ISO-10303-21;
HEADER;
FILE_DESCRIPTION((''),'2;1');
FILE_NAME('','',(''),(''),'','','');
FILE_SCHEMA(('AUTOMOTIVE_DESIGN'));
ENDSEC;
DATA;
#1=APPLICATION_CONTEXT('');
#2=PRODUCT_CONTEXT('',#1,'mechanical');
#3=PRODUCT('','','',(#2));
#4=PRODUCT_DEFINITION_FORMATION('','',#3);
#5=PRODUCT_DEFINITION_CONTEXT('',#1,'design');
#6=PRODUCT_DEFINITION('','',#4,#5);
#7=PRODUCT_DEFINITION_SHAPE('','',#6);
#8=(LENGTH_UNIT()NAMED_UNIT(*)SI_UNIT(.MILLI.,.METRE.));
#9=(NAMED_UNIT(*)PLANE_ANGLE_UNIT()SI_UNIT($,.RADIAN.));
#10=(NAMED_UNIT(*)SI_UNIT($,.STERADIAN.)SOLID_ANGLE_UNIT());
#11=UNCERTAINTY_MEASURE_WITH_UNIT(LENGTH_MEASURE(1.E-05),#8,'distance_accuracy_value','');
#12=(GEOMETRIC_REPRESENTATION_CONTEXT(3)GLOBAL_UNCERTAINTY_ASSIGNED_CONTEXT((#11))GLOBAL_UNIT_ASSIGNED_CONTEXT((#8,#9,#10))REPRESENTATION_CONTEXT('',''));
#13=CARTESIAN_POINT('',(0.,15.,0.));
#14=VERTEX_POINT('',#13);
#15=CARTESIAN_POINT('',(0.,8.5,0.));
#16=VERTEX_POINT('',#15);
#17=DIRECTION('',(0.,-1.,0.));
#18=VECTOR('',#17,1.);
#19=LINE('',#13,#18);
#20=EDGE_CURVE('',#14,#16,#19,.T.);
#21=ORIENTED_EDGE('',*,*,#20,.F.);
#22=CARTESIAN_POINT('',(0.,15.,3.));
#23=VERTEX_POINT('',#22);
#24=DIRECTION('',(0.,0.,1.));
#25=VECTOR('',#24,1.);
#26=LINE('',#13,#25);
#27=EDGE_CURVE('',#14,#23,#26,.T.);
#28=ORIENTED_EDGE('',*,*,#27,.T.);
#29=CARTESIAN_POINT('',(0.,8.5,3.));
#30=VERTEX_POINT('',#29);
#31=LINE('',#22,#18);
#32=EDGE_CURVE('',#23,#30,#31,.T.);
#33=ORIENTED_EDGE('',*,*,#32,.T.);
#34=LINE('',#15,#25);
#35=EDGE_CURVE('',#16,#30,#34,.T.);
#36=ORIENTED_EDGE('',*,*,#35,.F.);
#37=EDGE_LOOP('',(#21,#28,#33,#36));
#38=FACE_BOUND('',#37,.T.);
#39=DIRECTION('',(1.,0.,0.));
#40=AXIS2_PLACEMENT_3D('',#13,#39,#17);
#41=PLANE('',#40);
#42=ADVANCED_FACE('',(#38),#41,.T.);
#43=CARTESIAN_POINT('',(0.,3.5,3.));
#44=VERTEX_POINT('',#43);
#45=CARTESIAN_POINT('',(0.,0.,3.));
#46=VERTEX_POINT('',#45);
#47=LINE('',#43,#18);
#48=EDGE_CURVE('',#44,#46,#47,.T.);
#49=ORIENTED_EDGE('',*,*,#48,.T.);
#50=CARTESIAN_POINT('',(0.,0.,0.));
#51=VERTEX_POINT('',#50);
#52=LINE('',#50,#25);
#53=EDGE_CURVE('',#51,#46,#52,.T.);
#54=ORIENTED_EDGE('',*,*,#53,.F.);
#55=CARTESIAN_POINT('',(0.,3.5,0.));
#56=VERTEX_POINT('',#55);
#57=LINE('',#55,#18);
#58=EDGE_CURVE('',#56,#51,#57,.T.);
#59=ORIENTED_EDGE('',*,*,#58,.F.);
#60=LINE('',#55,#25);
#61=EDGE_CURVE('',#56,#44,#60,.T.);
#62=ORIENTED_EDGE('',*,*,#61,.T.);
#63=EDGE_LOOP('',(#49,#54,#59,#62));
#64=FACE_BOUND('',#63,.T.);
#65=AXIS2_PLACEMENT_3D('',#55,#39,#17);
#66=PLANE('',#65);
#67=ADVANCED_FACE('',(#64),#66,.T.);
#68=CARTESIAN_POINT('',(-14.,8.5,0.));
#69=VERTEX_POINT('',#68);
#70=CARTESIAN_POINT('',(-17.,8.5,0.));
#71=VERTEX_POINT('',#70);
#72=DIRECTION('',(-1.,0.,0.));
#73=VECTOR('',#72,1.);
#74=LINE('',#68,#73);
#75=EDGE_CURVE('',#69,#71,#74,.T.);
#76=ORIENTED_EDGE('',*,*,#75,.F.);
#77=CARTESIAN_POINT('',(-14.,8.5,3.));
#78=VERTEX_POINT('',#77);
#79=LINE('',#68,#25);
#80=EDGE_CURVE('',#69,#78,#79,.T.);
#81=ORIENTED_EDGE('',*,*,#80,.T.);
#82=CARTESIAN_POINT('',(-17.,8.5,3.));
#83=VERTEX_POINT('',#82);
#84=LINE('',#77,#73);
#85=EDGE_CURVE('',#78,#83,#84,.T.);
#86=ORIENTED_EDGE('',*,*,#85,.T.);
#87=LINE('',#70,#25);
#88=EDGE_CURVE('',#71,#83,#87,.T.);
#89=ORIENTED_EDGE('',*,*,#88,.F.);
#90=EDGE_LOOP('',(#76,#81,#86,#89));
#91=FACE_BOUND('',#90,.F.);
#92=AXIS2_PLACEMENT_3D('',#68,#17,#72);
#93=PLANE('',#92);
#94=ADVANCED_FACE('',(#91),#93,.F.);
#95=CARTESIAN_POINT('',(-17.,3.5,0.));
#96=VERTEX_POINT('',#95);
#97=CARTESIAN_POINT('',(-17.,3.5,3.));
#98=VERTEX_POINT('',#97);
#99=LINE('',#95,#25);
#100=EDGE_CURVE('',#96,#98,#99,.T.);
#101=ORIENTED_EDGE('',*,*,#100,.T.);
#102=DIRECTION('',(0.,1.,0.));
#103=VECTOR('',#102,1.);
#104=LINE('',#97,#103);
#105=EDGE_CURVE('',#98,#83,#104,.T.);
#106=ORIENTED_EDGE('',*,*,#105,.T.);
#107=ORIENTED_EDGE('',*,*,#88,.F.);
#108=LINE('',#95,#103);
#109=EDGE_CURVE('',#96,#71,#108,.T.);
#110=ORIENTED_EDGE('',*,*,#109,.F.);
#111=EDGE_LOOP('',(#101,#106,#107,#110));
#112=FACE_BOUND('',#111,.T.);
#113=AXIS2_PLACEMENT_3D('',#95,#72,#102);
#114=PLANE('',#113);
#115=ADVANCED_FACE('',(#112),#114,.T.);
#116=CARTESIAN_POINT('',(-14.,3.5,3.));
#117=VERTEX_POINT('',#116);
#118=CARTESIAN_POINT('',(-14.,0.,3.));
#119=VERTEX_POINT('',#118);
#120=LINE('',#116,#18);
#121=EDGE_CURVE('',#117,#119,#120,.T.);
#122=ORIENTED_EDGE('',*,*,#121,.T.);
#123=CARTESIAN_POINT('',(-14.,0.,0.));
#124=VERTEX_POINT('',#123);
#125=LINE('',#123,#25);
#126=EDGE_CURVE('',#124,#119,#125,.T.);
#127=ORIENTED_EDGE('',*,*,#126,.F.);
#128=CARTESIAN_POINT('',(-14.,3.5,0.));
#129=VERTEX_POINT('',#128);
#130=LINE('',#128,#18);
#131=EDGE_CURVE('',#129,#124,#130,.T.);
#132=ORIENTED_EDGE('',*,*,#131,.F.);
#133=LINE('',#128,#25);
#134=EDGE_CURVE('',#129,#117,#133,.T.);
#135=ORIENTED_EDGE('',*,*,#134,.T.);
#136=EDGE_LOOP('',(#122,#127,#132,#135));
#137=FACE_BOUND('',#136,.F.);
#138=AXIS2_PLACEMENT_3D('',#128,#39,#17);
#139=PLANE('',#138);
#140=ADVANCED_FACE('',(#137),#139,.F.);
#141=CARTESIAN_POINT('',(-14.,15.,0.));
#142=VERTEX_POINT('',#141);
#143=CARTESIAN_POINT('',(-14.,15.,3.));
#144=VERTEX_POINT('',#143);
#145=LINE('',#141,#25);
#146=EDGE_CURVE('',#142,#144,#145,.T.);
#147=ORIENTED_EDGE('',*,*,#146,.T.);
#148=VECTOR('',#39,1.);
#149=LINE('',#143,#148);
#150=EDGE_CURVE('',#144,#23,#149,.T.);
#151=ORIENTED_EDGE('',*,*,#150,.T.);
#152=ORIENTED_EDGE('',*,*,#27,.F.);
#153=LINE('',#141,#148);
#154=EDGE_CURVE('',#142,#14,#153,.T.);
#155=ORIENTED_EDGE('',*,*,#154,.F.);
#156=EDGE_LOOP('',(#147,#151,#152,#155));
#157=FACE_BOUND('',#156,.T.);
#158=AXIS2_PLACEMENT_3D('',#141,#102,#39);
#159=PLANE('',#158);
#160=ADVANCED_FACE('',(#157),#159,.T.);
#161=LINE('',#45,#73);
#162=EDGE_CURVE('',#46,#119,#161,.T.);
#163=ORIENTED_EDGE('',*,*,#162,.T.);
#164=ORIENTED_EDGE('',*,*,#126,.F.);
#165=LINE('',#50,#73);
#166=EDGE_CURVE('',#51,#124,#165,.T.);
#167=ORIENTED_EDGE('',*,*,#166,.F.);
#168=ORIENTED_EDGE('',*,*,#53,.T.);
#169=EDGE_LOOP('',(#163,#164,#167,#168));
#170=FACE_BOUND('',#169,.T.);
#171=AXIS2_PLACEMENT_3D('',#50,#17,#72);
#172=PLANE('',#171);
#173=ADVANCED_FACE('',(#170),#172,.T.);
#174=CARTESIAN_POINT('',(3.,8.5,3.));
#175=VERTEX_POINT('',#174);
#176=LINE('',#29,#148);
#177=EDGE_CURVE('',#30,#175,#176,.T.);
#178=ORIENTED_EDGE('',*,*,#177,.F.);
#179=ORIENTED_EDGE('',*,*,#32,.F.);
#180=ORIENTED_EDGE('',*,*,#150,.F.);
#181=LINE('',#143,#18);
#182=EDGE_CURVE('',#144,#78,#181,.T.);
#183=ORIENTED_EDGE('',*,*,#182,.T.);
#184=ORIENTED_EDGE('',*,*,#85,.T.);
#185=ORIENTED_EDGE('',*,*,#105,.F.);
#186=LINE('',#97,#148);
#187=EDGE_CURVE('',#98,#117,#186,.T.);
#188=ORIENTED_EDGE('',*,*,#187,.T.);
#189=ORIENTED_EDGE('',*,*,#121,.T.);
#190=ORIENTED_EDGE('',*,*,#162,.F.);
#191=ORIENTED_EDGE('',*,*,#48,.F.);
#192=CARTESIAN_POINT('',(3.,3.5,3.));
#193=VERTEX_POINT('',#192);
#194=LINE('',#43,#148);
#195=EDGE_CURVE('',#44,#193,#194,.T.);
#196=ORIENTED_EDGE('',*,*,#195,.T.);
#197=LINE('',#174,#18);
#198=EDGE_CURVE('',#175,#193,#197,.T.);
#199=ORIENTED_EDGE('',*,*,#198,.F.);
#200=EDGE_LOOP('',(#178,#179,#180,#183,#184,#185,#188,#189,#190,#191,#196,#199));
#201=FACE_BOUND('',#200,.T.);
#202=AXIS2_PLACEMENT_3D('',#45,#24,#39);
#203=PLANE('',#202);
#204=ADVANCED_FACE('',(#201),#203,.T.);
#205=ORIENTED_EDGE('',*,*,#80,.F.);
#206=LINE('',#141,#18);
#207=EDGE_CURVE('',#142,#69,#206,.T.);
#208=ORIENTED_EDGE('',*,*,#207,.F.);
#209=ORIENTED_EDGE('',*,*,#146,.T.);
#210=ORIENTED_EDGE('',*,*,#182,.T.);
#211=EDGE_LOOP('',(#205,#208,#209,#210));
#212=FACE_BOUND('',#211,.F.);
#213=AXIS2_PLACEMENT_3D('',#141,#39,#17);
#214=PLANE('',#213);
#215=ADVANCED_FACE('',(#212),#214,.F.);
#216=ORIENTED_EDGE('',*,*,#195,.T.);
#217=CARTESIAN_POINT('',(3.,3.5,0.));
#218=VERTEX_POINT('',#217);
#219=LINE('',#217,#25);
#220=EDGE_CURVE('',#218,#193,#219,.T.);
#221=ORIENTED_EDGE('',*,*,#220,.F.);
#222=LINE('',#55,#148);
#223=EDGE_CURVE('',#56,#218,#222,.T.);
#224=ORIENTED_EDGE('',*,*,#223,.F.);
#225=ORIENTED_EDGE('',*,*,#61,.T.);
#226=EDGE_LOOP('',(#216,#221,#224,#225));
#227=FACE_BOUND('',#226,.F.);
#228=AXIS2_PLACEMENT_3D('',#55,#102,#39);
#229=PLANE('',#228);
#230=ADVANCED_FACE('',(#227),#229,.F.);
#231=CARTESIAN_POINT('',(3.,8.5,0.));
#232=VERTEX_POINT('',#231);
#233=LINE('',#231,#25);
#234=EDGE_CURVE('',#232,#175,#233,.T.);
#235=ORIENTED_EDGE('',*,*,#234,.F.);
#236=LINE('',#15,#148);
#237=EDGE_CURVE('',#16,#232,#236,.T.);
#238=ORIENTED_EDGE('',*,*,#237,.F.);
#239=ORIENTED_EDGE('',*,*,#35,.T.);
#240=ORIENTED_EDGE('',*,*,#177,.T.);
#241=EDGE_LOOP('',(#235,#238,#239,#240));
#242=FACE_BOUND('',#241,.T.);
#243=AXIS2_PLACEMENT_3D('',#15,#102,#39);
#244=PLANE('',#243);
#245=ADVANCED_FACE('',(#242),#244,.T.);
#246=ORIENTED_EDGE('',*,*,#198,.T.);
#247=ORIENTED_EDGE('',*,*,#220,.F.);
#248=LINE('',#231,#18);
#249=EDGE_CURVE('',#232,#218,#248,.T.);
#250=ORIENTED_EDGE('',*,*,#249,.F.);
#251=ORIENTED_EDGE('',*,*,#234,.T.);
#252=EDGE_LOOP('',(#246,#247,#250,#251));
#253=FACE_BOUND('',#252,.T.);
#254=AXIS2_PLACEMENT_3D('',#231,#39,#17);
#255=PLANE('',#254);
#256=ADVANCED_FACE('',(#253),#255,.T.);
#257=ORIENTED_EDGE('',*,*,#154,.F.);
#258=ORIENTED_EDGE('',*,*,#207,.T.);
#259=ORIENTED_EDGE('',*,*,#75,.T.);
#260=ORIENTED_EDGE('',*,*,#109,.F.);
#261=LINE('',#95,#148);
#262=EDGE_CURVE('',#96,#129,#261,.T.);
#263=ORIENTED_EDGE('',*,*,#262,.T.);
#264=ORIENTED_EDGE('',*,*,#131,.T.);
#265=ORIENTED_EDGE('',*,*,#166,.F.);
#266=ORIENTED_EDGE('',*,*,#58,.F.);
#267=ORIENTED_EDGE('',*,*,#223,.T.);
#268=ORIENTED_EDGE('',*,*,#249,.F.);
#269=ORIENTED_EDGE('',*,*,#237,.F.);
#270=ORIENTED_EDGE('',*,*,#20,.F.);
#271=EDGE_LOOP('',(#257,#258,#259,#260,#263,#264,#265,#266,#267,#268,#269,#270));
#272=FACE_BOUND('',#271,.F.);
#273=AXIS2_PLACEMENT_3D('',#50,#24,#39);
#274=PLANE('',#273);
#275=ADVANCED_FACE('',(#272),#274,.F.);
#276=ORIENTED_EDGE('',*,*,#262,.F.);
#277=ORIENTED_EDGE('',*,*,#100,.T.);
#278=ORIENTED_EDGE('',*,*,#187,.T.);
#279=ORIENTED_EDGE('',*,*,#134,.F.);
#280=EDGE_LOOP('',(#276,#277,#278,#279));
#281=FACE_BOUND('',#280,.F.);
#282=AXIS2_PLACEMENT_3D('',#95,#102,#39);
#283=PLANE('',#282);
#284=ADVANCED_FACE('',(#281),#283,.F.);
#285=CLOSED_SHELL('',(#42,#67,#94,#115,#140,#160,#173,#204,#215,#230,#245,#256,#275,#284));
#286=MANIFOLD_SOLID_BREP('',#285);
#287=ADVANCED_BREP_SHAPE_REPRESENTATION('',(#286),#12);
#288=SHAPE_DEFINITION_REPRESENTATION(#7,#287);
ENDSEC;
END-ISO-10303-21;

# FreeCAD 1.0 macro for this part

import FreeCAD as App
import Part
import Sketcher

V = App.Vector
Q = App.Units.Quantity

doc = App.newDocument("Part")
params = doc.addObject("Spreadsheet::Sheet", "Params")
for row, (alias, value) in enumerate([
    ("sketch1_width", "3 mm"),
    ("sketch1_height", "5 mm"),
    ("sketch1_height2", "3.5 mm"),
    ("sketch1_width2", "14 mm"),
    ("pad1_length", "3 mm"),
], start=1):
    params.set(f"A{row}", alias)
    params.set(f"B{row}", "=" + value)
    params.setAlias(f"B{row}", alias)

body = doc.addObject("PartDesign::Body", "Body")

sketch1 = body.newObject("Sketcher::SketchObject", "Sketch")
sketch1.AttachmentSupport = (doc.getObject("XY_Plane"), [""])
sketch1.MapMode = "FlatFace"
sketch1.addGeometry([
    Part.LineSegment(V(0, 15, 0), V(-14, 15, 0)),
    Part.LineSegment(V(-14, 15, 0), V(-14, 8.5, 0)),
    Part.LineSegment(V(-14, 8.5, 0), V(-17, 8.5, 0)),
    Part.LineSegment(V(-17, 8.5, 0), V(-17, 3.5, 0)),
    Part.LineSegment(V(-17, 3.5, 0), V(-14, 3.5, 0)),
    Part.LineSegment(V(-14, 3.5, 0), V(-14, 0, 0)),
    Part.LineSegment(V(-14, 0, 0), V(0, 0, 0)),
    Part.LineSegment(V(0, 0, 0), V(0, 3.5, 0)),
    Part.LineSegment(V(0, 3.5, 0), V(3, 3.5, 0)),
    Part.LineSegment(V(3, 3.5, 0), V(3, 8.5, 0)),
    Part.LineSegment(V(3, 8.5, 0), V(0, 8.5, 0)),
    Part.LineSegment(V(0, 8.5, 0), V(0, 15, 0)),
], False)
sketch1.addConstraint([
    Sketcher.Constraint("Coincident", 0, 2, 1, 1),
    Sketcher.Constraint("Coincident", 1, 2, 2, 1),
    Sketcher.Constraint("Coincident", 2, 2, 3, 1),
    Sketcher.Constraint("Coincident", 3, 2, 4, 1),
    Sketcher.Constraint("Coincident", 4, 2, 5, 1),
    Sketcher.Constraint("Coincident", 5, 2, 6, 1),
    Sketcher.Constraint("Coincident", 6, 2, 7, 1),
    Sketcher.Constraint("Coincident", 7, 2, 8, 1),
    Sketcher.Constraint("Coincident", 8, 2, 9, 1),
    Sketcher.Constraint("Coincident", 9, 2, 10, 1),
    Sketcher.Constraint("Coincident", 10, 2, 11, 1),
    Sketcher.Constraint("Coincident", 11, 2, 0, 1),
    Sketcher.Constraint("Horizontal", 0),
    Sketcher.Constraint("Vertical", 1),
    Sketcher.Constraint("Horizontal", 2),
    Sketcher.Constraint("Vertical", 3),
    Sketcher.Constraint("Horizontal", 4),
    Sketcher.Constraint("Vertical", 5),
    Sketcher.Constraint("Horizontal", 6),
    Sketcher.Constraint("Vertical", 7),
    Sketcher.Constraint("Horizontal", 8),
    Sketcher.Constraint("Vertical", 9),
    Sketcher.Constraint("Horizontal", 10),
    Sketcher.Constraint("Vertical", 11),
    Sketcher.Constraint("Coincident", 6, 2, -1, 1),
    Sketcher.Constraint("PointOnObject", 10, 2, -2),
    Sketcher.Constraint("Horizontal", 4, 2, 7, 2),
    Sketcher.Constraint("Horizontal", 2, 2, 9, 2),
    Sketcher.Constraint("Vertical", 1, 2, 4, 2),
    Sketcher.Constraint("Equal", 4, 8),
    Sketcher.Constraint("DistanceX", 2, 2, 2, 1, Q("3 mm")),
    Sketcher.Constraint("DistanceY", 3, 2, 3, 1, Q("5 mm")),
    Sketcher.Constraint("DistanceY", 5, 2, 5, 1, Q("3.5 mm")),
    Sketcher.Constraint("DistanceY", -1, 1, 0, 2, Q("15 mm")),
    Sketcher.Constraint("DistanceX", 0, 2, 0, 1, Q("14 mm")),
])
sketch1.setExpression("Constraints[30]", "Params.sketch1_width")
sketch1.setExpression("Constraints[31]", "Params.sketch1_height")
sketch1.setExpression("Constraints[32]", "Params.sketch1_height2")
sketch1.setExpression("Constraints[34]", "Params.sketch1_width2")
pad1 = body.newObject("PartDesign::Pad", "Pad")
pad1.Profile = sketch1
pad1.setExpression("Length", "Params.pad1_length")

doc.recompute()
